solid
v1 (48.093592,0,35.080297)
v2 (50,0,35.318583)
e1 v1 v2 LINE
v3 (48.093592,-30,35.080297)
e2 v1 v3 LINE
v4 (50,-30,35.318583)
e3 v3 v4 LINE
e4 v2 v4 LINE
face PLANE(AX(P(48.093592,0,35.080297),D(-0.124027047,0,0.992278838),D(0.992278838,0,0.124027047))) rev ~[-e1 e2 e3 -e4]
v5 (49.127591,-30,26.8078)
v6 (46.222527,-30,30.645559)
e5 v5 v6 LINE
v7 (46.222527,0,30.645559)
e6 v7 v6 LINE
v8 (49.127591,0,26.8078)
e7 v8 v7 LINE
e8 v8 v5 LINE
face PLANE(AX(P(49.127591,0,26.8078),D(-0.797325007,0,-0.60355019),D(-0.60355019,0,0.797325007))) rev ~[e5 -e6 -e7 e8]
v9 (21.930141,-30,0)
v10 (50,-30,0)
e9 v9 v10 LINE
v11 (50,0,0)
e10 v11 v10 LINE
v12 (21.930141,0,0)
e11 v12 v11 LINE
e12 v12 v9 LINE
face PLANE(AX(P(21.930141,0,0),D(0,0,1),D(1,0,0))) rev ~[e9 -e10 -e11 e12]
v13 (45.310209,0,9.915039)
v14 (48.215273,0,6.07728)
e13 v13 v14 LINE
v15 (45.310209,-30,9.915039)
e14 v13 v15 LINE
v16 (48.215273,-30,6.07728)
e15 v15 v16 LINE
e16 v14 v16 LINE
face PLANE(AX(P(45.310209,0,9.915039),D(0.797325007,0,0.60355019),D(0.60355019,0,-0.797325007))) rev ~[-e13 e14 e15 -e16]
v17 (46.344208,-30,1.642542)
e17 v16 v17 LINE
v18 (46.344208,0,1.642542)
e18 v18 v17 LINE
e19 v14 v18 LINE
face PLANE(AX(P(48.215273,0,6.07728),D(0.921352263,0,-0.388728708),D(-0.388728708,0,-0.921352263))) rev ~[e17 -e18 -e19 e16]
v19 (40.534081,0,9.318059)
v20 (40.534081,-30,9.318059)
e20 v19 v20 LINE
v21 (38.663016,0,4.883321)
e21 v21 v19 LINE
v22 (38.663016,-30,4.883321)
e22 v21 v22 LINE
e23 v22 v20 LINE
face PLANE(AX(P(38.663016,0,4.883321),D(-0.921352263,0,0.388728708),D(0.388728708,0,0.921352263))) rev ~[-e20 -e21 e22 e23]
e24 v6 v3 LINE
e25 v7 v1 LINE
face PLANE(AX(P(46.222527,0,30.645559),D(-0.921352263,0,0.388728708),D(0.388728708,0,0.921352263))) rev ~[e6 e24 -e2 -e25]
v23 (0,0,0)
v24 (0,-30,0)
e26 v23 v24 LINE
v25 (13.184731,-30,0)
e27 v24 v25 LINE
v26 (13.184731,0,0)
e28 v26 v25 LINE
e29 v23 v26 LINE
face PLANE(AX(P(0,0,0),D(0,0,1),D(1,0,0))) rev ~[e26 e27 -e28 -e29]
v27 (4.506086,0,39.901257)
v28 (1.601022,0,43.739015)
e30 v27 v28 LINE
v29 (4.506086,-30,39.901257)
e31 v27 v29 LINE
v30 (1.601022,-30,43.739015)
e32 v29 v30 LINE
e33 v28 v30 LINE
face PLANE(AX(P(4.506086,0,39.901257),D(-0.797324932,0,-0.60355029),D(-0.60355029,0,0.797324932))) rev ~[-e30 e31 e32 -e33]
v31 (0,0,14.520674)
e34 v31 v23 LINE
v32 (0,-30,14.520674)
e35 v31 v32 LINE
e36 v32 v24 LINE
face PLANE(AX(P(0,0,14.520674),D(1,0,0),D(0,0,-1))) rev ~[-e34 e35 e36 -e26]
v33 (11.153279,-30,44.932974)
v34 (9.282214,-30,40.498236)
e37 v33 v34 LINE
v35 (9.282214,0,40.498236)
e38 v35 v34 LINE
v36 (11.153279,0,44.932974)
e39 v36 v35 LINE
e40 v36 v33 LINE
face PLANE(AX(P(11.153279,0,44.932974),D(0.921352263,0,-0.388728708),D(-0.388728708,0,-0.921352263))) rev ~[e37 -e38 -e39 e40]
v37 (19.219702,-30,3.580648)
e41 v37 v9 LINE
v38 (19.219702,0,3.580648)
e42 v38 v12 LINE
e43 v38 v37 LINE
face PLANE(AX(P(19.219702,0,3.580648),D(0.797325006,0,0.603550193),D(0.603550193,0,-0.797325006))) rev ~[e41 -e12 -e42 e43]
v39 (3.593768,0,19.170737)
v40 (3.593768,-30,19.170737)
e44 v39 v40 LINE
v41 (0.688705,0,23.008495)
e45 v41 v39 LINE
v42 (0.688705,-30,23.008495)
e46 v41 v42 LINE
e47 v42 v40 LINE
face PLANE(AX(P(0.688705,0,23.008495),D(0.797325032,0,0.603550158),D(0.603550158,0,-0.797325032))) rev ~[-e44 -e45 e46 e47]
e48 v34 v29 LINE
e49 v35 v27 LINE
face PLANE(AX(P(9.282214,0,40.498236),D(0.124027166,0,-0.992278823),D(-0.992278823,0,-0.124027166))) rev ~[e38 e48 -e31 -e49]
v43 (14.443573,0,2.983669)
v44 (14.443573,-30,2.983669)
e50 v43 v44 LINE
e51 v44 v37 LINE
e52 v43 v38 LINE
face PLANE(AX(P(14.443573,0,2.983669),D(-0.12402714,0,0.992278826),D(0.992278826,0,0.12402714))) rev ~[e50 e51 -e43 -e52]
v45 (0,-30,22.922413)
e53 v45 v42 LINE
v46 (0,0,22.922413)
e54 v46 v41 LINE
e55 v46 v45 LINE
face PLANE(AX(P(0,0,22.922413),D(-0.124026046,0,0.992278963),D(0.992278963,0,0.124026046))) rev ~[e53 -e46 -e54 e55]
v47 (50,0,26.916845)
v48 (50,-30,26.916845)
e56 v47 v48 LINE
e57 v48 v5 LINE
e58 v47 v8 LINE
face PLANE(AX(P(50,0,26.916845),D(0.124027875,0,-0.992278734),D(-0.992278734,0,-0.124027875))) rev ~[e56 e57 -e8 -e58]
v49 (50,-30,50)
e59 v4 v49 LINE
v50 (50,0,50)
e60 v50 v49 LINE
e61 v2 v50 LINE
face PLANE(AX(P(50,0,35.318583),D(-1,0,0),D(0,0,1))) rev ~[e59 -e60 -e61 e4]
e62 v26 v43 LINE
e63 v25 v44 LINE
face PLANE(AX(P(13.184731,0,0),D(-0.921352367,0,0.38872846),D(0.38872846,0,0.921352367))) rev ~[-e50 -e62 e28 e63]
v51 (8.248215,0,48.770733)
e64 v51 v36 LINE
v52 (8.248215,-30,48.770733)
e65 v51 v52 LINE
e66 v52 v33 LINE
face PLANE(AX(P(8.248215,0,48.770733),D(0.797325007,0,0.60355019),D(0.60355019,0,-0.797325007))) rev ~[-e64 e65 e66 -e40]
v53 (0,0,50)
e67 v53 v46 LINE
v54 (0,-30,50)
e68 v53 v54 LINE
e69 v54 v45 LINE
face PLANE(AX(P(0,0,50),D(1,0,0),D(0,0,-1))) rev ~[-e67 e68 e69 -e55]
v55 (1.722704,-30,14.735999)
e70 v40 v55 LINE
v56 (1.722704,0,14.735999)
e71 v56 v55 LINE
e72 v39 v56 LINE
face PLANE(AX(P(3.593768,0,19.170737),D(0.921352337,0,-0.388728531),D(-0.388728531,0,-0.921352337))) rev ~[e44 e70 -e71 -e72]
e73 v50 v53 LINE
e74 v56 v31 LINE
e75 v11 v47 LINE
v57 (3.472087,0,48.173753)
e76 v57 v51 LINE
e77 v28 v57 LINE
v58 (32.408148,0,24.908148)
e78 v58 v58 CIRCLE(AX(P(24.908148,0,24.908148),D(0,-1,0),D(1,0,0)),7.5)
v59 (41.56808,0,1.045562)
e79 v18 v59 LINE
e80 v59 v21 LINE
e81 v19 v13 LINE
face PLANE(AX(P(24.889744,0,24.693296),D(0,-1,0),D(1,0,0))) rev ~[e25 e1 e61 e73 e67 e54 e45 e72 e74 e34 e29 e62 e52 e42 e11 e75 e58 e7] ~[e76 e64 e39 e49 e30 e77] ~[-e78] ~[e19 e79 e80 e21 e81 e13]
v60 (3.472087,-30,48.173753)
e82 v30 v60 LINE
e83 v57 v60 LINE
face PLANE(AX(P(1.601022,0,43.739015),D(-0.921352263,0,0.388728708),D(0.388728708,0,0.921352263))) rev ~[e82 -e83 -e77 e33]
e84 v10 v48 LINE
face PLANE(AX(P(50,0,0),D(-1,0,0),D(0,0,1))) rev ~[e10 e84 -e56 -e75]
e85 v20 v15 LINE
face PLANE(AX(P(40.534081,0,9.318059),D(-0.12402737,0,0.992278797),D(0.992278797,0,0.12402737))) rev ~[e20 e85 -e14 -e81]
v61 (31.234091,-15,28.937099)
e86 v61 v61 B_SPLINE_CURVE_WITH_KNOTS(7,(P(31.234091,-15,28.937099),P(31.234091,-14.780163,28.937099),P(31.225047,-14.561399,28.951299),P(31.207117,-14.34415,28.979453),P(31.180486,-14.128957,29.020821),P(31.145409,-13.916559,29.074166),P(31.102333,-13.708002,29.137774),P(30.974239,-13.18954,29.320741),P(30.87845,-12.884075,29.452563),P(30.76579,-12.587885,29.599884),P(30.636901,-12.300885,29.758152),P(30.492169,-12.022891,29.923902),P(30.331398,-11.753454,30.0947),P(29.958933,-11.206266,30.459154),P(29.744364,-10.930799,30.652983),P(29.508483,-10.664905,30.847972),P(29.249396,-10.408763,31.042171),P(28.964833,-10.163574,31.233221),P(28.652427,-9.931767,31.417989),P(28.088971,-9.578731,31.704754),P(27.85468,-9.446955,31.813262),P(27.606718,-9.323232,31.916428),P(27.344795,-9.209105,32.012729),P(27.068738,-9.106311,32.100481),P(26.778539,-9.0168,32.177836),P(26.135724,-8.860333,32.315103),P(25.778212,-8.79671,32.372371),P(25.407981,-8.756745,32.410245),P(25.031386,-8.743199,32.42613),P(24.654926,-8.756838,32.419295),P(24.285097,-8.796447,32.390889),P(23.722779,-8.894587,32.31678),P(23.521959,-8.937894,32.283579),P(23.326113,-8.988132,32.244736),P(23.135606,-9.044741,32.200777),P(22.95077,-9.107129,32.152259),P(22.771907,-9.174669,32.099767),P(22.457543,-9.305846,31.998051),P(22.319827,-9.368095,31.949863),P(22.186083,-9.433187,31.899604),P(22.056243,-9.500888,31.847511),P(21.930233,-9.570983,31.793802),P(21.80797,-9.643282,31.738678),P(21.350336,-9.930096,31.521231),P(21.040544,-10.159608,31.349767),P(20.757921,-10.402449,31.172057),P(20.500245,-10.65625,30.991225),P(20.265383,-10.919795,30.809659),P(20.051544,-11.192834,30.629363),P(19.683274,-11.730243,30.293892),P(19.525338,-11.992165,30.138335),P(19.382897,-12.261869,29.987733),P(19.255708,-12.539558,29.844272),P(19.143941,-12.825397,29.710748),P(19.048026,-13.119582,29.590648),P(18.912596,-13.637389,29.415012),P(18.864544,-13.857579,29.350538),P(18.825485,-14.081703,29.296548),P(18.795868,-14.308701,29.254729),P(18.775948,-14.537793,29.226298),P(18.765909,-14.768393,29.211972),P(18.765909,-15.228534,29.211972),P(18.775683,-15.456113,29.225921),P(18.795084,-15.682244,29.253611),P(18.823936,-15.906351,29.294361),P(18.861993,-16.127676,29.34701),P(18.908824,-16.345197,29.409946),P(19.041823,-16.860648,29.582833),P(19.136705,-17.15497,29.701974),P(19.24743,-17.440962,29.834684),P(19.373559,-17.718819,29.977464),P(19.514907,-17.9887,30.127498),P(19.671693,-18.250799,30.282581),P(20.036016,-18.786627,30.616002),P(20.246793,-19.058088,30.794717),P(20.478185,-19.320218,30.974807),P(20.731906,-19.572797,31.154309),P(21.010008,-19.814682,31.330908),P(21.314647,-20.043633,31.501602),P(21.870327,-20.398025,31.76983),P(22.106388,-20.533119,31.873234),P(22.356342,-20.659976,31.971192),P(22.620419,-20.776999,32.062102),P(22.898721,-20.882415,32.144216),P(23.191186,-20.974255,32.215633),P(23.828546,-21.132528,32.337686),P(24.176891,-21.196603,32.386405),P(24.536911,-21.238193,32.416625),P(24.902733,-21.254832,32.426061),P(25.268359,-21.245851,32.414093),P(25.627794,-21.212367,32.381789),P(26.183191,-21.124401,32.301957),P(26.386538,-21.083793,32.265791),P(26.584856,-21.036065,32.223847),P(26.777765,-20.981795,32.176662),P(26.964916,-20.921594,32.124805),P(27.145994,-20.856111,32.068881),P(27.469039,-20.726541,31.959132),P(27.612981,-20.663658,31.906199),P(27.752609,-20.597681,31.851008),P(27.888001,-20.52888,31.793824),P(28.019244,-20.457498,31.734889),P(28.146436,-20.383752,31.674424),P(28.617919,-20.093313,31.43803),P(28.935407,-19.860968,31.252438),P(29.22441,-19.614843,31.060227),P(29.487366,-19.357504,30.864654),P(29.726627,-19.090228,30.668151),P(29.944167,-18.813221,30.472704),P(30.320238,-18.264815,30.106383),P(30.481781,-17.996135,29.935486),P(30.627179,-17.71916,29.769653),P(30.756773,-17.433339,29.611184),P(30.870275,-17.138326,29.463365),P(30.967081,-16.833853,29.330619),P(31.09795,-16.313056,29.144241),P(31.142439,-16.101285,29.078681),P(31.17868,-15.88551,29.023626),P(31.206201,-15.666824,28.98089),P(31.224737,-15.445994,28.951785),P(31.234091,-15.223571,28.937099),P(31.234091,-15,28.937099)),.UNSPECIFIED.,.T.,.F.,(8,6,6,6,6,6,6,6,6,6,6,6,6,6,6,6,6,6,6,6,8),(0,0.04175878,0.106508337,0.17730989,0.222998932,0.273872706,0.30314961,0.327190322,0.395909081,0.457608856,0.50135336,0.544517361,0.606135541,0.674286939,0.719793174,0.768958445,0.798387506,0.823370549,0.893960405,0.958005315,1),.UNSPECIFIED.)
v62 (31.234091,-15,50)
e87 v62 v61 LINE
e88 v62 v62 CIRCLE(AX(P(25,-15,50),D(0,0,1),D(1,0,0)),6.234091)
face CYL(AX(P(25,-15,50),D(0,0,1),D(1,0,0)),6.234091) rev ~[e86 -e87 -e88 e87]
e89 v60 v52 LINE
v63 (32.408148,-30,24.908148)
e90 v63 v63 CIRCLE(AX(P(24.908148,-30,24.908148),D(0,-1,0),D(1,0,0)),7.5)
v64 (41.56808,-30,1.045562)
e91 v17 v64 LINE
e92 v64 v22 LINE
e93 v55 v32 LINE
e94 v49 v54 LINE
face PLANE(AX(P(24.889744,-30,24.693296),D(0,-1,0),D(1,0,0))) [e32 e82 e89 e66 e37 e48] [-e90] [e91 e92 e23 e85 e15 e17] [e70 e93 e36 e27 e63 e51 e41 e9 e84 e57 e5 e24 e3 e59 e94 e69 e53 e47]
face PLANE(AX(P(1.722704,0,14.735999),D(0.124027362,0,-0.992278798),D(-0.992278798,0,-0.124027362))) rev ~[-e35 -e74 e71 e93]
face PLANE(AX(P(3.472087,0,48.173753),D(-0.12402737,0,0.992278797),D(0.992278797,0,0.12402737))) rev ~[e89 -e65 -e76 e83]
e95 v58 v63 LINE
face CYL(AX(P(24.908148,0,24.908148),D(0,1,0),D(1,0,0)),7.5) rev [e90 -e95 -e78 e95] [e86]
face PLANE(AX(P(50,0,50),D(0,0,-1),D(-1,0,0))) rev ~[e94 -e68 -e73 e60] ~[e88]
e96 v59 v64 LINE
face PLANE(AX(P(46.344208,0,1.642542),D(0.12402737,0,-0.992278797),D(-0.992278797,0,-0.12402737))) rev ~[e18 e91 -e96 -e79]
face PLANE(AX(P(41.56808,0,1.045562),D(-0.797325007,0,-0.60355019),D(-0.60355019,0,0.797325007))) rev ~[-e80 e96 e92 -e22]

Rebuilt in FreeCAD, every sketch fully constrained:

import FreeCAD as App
import Part
import Sketcher
from FreeCAD import Vector
Q = App.Units.Quantity

doc = App.newDocument("Part")
body = doc.addObject("PartDesign::Body", "Body")

# Sketch on XZ plane
sketch1 = body.newObject("Sketcher::SketchObject", "Sketch")
sketch1.AttachmentSupport = (doc.getObject("XZ_Plane"), [""])
sketch1.MapMode = "FlatFace"
sketch1.addGeometry([
    Part.LineSegment(Vector(0, 14.5, 0), Vector(0, 0, 0)),  # 0
    Part.LineSegment(Vector(0, 0, 0), Vector(13.2, 0, 0)),  # 1
    Part.LineSegment(Vector(13.2, 0, 0), Vector(14.4, 3, 0)),  # 2
    Part.LineSegment(Vector(14.4, 3, 0), Vector(19.2, 3.6, 0)),  # 3
    Part.LineSegment(Vector(19.2, 3.6, 0), Vector(21.9, 0, 0)),  # 4
    Part.LineSegment(Vector(21.9, 0, 0), Vector(50, 0, 0)),  # 5
    Part.LineSegment(Vector(50, 0, 0), Vector(50, 26.9, 0)),  # 6
    Part.LineSegment(Vector(50, 26.9, 0), Vector(49.1, 26.8, 0)),  # 7
    Part.LineSegment(Vector(49.1, 26.8, 0), Vector(46.2, 30.6, 0)),  # 8
    Part.LineSegment(Vector(46.2, 30.6, 0), Vector(48.1, 35.1, 0)),  # 9
    Part.LineSegment(Vector(48.1, 35.1, 0), Vector(50, 35.3, 0)),  # 10
    Part.LineSegment(Vector(50, 35.3, 0), Vector(50, 50, 0)),  # 11
    Part.LineSegment(Vector(50, 50, 0), Vector(0, 50, 0)),  # 12
    Part.LineSegment(Vector(0, 50, 0), Vector(0, 22.9, 0)),  # 13
    Part.LineSegment(Vector(0, 22.9, 0), Vector(0.7, 23, 0)),  # 14
    Part.LineSegment(Vector(0.7, 23, 0), Vector(3.6, 19.2, 0)),  # 15
    Part.LineSegment(Vector(3.6, 19.2, 0), Vector(1.7, 14.7, 0)),  # 16
    Part.LineSegment(Vector(1.7, 14.7, 0), Vector(0, 14.5, 0)),  # 17
    Part.LineSegment(Vector(48.2, 6.1, 0), Vector(46.3, 1.6, 0)),  # 18
    Part.LineSegment(Vector(46.3, 1.6, 0), Vector(41.6, 1, 0)),  # 19
    Part.LineSegment(Vector(41.6, 1, 0), Vector(38.7, 4.9, 0)),  # 20
    Part.LineSegment(Vector(38.7, 4.9, 0), Vector(40.5, 9.3, 0)),  # 21
    Part.LineSegment(Vector(40.5, 9.3, 0), Vector(45.3, 9.9, 0)),  # 22
    Part.LineSegment(Vector(45.3, 9.9, 0), Vector(48.2, 6.1, 0)),  # 23
    Part.LineSegment(Vector(3.5, 48.2, 0), Vector(8.2, 48.8, 0)),  # 24
    Part.LineSegment(Vector(8.2, 48.8, 0), Vector(11.2, 44.9, 0)),  # 25
    Part.LineSegment(Vector(11.2, 44.9, 0), Vector(9.3, 40.5, 0)),  # 26
    Part.LineSegment(Vector(9.3, 40.5, 0), Vector(4.5, 39.9, 0)),  # 27
    Part.LineSegment(Vector(4.5, 39.9, 0), Vector(1.6, 43.7, 0)),  # 28
    Part.LineSegment(Vector(1.6, 43.7, 0), Vector(3.5, 48.2, 0)),  # 29
    Part.Circle(Vector(24.9, 24.9, 0), Vector(0, 0, 1), 7.5),  # 30
], False)
sketch1.addConstraint([
    Sketcher.Constraint("Coincident", 0, 2, 1, 1),
    Sketcher.Constraint("Coincident", 1, 2, 2, 1),
    Sketcher.Constraint("Coincident", 2, 2, 3, 1),
    Sketcher.Constraint("Coincident", 3, 2, 4, 1),
    Sketcher.Constraint("Coincident", 4, 2, 5, 1),
    Sketcher.Constraint("Coincident", 5, 2, 6, 1),
    Sketcher.Constraint("Coincident", 6, 2, 7, 1),
    Sketcher.Constraint("Coincident", 7, 2, 8, 1),
    Sketcher.Constraint("Coincident", 8, 2, 9, 1),
    Sketcher.Constraint("Coincident", 9, 2, 10, 1),
    Sketcher.Constraint("Coincident", 10, 2, 11, 1),
    Sketcher.Constraint("Coincident", 11, 2, 12, 1),
    Sketcher.Constraint("Coincident", 12, 2, 13, 1),
    Sketcher.Constraint("Coincident", 13, 2, 14, 1),
    Sketcher.Constraint("Coincident", 14, 2, 15, 1),
    Sketcher.Constraint("Coincident", 15, 2, 16, 1),
    Sketcher.Constraint("Coincident", 16, 2, 17, 1),
    Sketcher.Constraint("Coincident", 17, 2, 0, 1),
    Sketcher.Constraint("Coincident", 18, 2, 19, 1),
    Sketcher.Constraint("Coincident", 19, 2, 20, 1),
    Sketcher.Constraint("Coincident", 20, 2, 21, 1),
    Sketcher.Constraint("Coincident", 21, 2, 22, 1),
    Sketcher.Constraint("Coincident", 22, 2, 23, 1),
    Sketcher.Constraint("Coincident", 23, 2, 18, 1),
    Sketcher.Constraint("Coincident", 24, 2, 25, 1),
    Sketcher.Constraint("Coincident", 25, 2, 26, 1),
    Sketcher.Constraint("Coincident", 26, 2, 27, 1),
    Sketcher.Constraint("Coincident", 27, 2, 28, 1),
    Sketcher.Constraint("Coincident", 28, 2, 29, 1),
    Sketcher.Constraint("Coincident", 29, 2, 24, 1),
    Sketcher.Constraint("Vertical", 0),
    Sketcher.Constraint("Horizontal", 1),
    Sketcher.Constraint("Horizontal", 5),
    Sketcher.Constraint("Vertical", 6),
    Sketcher.Constraint("Vertical", 11),
    Sketcher.Constraint("Horizontal", 12),
    Sketcher.Constraint("Vertical", 13),
    Sketcher.Constraint("Coincident", 0, 2, -1, 1),
    Sketcher.Constraint("PointOnObject", 4, 2, -1),
    Sketcher.Constraint("PointOnObject", 12, 2, -2),
    Sketcher.Constraint("Parallel", 3, 7),
    Sketcher.Constraint("Parallel", 4, 8),
    Sketcher.Constraint("Parallel", 2, 9),
    Sketcher.Constraint("Parallel", 7, 10),
    Sketcher.Constraint("Parallel", 10, 14),
    Sketcher.Constraint("Parallel", 8, 15),
    Sketcher.Constraint("Parallel", 9, 16),
    Sketcher.Constraint("Parallel", 14, 17),
    Sketcher.Constraint("Parallel", 16, 18),
    Sketcher.Constraint("Parallel", 17, 19),
    Sketcher.Constraint("Parallel", 15, 20),
    Sketcher.Constraint("Parallel", 18, 21),
    Sketcher.Constraint("Parallel", 19, 22),
    Sketcher.Constraint("Parallel", 20, 23),
    Sketcher.Constraint("Parallel", 22, 24),
    Sketcher.Constraint("Parallel", 23, 25),
    Sketcher.Constraint("Parallel", 21, 26),
    Sketcher.Constraint("Parallel", 24, 27),
    Sketcher.Constraint("Parallel", 25, 28),
    Sketcher.Constraint("Parallel", 26, 29),
    Sketcher.Constraint("Vertical", 6, 2, 10, 2),
    Sketcher.Constraint("Equal", 3, 8),
    Sketcher.Constraint("Equal", 8, 9),
    Sketcher.Constraint("Equal", 9, 15),
    Sketcher.Constraint("Equal", 15, 16),
    Sketcher.Constraint("Equal", 16, 18),
    Sketcher.Constraint("Equal", 18, 19),
    Sketcher.Constraint("Equal", 19, 20),
    Sketcher.Constraint("Equal", 20, 21),
    Sketcher.Constraint("Equal", 23, 24),
    Sketcher.Constraint("Equal", 24, 25),
    Sketcher.Constraint("Equal", 25, 26),
    Sketcher.Constraint("Equal", 26, 27),
    Sketcher.Constraint("Diameter", 30, Q("15 mm")),
    Sketcher.Constraint("DistanceX", 12, 2, 12, 1, Q("50 mm")),
    Sketcher.Constraint("DistanceY", -1, 1, 11, 2, Q("50 mm")),
    Sketcher.Constraint("DistanceY", -1, 1, 16, 2, Q("14.735999 mm")),
    Sketcher.Constraint("DistanceX", 9, 2, 7, 2, Q("1.033999 mm")),
    Sketcher.Constraint("DistanceX", 1, 1, 1, 2, Q("13.184731 mm")),
    Sketcher.Constraint("DistanceX", 5, 1, 5, 2, Q("28.069859 mm")),
    Sketcher.Constraint("DistanceY", -1, 1, 7, 2, Q("26.8078 mm")),
    Sketcher.Constraint("DistanceY", 3, 2, 30, 3, Q("21.3275 mm")),
    Sketcher.Constraint("Distance", 2, Q("3.238358 mm")),
    Sketcher.Constraint("Distance", 15, Q("4.813292 mm")),
    Sketcher.Constraint("Distance", 17, Q("1.736109 mm")),
    Sketcher.Constraint("DistanceY", 0, 2, 0, 1, Q("14.520674 mm")),
    Sketcher.Constraint("DistanceY", 6, 1, 6, 2, Q("26.916845 mm")),
    Sketcher.Constraint("DistanceX", -1, 1, 30, 3, Q("24.908148 mm")),
    Sketcher.Constraint("DistanceX", -1, 1, 18, 2, Q("46.344208 mm")),
    Sketcher.Constraint("DistanceY", -1, 1, 20, 2, Q("4.883321 mm")),
    Sketcher.Constraint("DistanceX", -1, 1, 25, 2, Q("11.153279 mm")),
    Sketcher.Constraint("DistanceY", 14, 2, 24, 2, Q("25.762238 mm")),
])
pad1 = body.newObject("PartDesign::Pad", "Pad")
pad1.Profile = sketch1
pad1.Length = 30

# Sketch on XY plane
sketch2 = body.newObject("Sketcher::SketchObject", "Sketch001")
sketch2.AttachmentSupport = (doc.getObject("XY_Plane"), [""])
sketch2.MapMode = "FlatFace"
sketch2.AttachmentOffset = App.Placement(Vector(0, 0, 50), App.Rotation())
sketch2.addGeometry(Part.Circle(Vector(25, -15, 0), Vector(0, 0, 1), 6), False)
sketch2.addConstraint([
    Sketcher.Constraint("DistanceX", -1, 1, 0, 3, Q("25 mm")),
    Sketcher.Constraint("DistanceY", 0, 3, -1, 1, Q("15 mm")),
    Sketcher.Constraint("Diameter", 0, Q("12.468182 mm")),
])
pocket1 = body.newObject("PartDesign::Pocket", "Pocket")
pocket1.Profile = sketch2
pocket1.Length = 24.4

doc.recompute()
